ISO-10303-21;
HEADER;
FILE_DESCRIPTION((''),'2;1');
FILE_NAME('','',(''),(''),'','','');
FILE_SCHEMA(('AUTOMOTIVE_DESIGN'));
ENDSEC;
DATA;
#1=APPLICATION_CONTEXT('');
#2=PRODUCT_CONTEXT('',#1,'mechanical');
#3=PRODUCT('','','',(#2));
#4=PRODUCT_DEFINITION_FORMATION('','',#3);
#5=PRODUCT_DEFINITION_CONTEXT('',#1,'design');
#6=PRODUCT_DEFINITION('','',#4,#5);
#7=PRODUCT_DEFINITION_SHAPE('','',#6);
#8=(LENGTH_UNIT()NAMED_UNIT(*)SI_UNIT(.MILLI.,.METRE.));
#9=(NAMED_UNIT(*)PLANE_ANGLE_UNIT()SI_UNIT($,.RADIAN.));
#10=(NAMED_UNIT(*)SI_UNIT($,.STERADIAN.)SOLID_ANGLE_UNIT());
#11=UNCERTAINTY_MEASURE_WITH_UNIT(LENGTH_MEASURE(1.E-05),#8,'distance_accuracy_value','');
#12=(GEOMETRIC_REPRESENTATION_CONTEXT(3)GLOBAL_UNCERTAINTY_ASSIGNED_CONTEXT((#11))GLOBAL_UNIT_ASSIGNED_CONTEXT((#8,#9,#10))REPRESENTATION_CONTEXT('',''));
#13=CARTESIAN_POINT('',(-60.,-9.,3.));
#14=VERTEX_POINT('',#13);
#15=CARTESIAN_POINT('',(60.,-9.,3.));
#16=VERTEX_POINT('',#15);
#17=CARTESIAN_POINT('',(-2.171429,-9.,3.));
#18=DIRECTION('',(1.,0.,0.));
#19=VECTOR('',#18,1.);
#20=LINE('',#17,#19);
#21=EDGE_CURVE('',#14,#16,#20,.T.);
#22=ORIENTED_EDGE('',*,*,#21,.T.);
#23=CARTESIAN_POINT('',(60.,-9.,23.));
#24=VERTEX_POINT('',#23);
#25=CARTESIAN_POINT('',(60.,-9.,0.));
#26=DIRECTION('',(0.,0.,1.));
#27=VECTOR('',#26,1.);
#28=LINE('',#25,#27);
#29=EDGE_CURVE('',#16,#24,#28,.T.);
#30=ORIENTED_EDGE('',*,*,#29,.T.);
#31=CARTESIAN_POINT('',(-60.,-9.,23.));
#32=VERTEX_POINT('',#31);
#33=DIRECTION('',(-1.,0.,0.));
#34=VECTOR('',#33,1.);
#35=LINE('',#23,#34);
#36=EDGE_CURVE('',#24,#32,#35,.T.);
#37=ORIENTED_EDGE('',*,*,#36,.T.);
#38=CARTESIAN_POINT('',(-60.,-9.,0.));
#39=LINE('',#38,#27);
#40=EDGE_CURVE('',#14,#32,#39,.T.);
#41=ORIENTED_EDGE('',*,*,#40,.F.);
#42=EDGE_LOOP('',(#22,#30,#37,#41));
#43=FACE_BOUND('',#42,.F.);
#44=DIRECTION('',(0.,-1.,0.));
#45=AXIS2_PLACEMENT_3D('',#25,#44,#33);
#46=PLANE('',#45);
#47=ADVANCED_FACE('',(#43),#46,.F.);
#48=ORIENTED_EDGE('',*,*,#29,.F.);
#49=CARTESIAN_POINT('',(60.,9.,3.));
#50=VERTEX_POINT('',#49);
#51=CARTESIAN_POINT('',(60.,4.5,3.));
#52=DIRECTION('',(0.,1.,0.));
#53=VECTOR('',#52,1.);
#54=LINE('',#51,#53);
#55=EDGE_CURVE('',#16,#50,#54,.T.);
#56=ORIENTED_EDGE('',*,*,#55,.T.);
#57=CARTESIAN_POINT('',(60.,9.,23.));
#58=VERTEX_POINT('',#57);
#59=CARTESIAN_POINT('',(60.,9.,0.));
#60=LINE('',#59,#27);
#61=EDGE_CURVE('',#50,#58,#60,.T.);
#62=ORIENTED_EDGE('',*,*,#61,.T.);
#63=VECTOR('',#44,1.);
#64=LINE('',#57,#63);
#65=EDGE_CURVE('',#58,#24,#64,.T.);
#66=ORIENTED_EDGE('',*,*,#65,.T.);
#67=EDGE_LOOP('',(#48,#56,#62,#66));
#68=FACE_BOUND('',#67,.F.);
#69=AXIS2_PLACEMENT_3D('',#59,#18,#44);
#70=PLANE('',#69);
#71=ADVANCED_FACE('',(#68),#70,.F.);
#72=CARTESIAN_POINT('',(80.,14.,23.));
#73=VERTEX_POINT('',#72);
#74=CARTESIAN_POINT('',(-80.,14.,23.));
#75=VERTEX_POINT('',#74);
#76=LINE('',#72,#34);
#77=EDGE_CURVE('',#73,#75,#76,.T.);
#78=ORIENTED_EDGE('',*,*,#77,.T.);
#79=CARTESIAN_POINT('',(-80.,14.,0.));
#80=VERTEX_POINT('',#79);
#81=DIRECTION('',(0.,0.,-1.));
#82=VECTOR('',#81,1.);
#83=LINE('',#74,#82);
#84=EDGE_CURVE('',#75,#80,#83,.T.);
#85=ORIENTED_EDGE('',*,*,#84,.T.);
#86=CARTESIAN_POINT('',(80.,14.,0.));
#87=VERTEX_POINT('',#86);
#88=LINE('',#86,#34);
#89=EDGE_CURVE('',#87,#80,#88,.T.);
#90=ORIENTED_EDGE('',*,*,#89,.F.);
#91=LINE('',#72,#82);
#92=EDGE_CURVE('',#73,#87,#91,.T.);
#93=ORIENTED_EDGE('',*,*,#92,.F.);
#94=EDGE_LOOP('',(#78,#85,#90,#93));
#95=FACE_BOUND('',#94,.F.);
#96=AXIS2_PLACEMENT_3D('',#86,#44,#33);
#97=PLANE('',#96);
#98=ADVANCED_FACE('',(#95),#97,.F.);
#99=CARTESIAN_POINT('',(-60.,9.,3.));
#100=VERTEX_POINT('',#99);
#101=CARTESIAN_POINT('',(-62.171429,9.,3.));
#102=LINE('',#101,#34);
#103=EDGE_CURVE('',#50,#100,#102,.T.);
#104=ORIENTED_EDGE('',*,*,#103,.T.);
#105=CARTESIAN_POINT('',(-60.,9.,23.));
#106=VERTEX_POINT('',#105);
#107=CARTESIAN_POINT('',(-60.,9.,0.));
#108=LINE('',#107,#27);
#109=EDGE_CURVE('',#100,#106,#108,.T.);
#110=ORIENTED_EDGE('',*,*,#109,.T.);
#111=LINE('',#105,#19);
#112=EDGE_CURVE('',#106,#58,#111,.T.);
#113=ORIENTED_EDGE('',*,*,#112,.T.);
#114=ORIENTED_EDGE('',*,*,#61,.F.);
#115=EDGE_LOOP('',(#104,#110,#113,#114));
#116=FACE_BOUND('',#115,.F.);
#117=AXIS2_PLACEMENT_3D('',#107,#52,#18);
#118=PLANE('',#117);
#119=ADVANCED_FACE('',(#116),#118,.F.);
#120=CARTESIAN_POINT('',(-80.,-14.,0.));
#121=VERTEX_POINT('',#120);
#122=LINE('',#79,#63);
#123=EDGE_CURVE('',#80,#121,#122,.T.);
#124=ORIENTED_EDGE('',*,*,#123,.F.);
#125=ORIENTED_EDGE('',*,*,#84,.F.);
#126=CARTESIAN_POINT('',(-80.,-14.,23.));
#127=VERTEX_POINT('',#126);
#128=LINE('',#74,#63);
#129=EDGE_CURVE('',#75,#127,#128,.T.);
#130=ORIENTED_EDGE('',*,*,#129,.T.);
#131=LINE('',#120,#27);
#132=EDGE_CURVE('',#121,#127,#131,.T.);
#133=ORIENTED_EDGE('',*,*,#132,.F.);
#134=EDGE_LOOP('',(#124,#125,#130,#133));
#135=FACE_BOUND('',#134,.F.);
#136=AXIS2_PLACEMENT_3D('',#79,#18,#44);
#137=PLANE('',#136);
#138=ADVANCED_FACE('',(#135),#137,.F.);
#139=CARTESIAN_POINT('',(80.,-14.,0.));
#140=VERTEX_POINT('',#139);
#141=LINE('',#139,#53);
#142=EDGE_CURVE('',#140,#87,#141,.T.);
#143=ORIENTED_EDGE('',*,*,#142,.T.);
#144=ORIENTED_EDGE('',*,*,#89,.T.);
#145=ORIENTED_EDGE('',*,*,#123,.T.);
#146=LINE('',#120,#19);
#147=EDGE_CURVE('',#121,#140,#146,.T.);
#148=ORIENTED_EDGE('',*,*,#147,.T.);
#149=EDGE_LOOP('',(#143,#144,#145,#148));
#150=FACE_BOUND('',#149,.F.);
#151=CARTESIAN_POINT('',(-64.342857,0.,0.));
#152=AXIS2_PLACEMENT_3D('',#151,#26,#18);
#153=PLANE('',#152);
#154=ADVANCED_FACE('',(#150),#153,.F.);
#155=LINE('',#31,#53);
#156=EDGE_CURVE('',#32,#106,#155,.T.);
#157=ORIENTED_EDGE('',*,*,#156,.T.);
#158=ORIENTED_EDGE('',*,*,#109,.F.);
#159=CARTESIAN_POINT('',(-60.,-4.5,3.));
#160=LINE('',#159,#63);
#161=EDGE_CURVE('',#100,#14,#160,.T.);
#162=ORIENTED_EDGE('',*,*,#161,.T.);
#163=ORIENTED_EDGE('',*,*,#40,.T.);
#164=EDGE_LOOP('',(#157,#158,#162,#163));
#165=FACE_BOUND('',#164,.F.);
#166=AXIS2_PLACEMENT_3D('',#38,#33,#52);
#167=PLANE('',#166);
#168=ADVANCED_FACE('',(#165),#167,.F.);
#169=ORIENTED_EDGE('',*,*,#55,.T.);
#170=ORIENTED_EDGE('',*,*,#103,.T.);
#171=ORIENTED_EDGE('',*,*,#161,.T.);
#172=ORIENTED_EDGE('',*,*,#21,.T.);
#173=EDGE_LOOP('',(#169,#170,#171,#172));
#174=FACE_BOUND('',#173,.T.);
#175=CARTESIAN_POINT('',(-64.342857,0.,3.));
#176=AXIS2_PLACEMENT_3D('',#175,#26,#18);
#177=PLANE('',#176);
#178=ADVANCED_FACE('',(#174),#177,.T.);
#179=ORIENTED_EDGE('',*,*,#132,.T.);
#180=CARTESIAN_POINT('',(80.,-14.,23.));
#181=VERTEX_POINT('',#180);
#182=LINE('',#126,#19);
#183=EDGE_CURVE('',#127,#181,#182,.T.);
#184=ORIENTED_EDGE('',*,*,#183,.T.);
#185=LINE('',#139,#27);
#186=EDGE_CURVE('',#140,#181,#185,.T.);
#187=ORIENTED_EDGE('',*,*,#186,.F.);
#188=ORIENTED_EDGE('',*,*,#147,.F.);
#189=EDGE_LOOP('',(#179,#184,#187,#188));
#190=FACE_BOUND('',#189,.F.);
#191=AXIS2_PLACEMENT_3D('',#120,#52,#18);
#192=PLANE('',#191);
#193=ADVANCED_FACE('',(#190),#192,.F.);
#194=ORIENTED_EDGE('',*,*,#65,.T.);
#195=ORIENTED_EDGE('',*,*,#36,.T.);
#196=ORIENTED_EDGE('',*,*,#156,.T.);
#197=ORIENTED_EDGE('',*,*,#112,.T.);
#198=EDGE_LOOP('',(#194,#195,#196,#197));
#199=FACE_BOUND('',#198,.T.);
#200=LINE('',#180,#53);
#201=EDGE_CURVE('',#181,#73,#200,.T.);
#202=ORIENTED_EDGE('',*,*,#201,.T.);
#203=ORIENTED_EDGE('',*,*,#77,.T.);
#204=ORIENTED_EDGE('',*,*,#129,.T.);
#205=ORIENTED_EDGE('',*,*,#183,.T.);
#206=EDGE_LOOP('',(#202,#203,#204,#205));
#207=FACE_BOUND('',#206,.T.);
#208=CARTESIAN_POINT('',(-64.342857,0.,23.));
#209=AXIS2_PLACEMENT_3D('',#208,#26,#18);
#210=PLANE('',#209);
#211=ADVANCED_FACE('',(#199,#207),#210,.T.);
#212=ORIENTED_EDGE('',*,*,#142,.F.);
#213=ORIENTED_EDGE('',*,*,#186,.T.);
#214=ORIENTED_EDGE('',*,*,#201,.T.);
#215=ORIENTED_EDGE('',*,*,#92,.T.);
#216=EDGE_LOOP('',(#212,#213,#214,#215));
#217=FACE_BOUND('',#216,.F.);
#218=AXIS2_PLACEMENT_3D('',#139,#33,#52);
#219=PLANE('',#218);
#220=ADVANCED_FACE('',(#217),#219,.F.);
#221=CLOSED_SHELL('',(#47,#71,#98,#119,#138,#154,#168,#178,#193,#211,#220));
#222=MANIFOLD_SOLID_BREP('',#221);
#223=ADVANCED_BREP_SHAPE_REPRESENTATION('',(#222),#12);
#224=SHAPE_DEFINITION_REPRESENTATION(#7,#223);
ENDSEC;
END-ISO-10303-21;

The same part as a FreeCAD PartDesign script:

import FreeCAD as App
import Part
import Sketcher

doc = App.newDocument("Part")
body = doc.addObject("PartDesign::Body", "Body")

sketch1 = body.newObject("Sketcher::SketchObject", "Sketch")
sketch1.AttachmentSupport = (doc.getObject("XY_Plane"), [""])
sketch1.MapMode = "FlatFace"
sketch1.addGeometry(Part.LineSegment(App.Vector(-80, 14, 0), App.Vector(-80, -14, 0)), False)
sketch1.addGeometry(Part.LineSegment(App.Vector(-80, -14, 0), App.Vector(80, -14, 0)), False)
sketch1.addGeometry(Part.LineSegment(App.Vector(80, -14, 0), App.Vector(80, 14, 0)), False)
sketch1.addGeometry(Part.LineSegment(App.Vector(80, 14, 0), App.Vector(-80, 14, 0)), False)
sketch1.addConstraint(Sketcher.Constraint("Coincident", 0, 2, 1, 1))
sketch1.addConstraint(Sketcher.Constraint("Coincident", 1, 2, 2, 1))
sketch1.addConstraint(Sketcher.Constraint("Coincident", 2, 2, 3, 1))
sketch1.addConstraint(Sketcher.Constraint("Coincident", 3, 2, 0, 1))
sketch1.addConstraint(Sketcher.Constraint("Vertical", 0))
sketch1.addConstraint(Sketcher.Constraint("Horizontal", 1))
sketch1.addConstraint(Sketcher.Constraint("Vertical", 2))
sketch1.addConstraint(Sketcher.Constraint("Horizontal", 3))
sketch1.addConstraint(Sketcher.Constraint("Symmetric", 0, 2, 2, 2, -1, 1))
sketch1.addConstraint(Sketcher.Constraint("DistanceX", 1, 1, 1, 2, 160.0))
sketch1.addConstraint(Sketcher.Constraint("DistanceY", 0, 2, 0, 1, 28.0))
pad1 = body.newObject("PartDesign::Pad", "Pad")
pad1.Profile = sketch1
pad1.Length = 3

sketch2 = body.newObject("Sketcher::SketchObject", "Sketch001")
sketch2.AttachmentSupport = (doc.getObject("XY_Plane"), [""])
sketch2.MapMode = "FlatFace"
sketch2.addGeometry(Part.LineSegment(App.Vector(-80, -14, 0), App.Vector(80, -14, 0)), False)
sketch2.addGeometry(Part.LineSegment(App.Vector(80, -14, 0), App.Vector(80, 14, 0)), False)
sketch2.addGeometry(Part.LineSegment(App.Vector(80, 14, 0), App.Vector(-80, 14, 0)), False)
sketch2.addGeometry(Part.LineSegment(App.Vector(-80, 14, 0), App.Vector(-80, -14, 0)), False)
sketch2.addGeometry(Part.LineSegment(App.Vector(-60, -9, 0), App.Vector(-60, 9, 0)), False)
sketch2.addGeometry(Part.LineSegment(App.Vector(-60, 9, 0), App.Vector(60, 9, 0)), False)
sketch2.addGeometry(Part.LineSegment(App.Vector(60, 9, 0), App.Vector(60, -9, 0)), False)
sketch2.addGeometry(Part.LineSegment(App.Vector(60, -9, 0), App.Vector(-60, -9, 0)), False)
sketch2.addConstraint(Sketcher.Constraint("Coincident", 0, 2, 1, 1))
sketch2.addConstraint(Sketcher.Constraint("Coincident", 1, 2, 2, 1))
sketch2.addConstraint(Sketcher.Constraint("Coincident", 2, 2, 3, 1))
sketch2.addConstraint(Sketcher.Constraint("Coincident", 3, 2, 0, 1))
sketch2.addConstraint(Sketcher.Constraint("Coincident", 4, 2, 5, 1))
sketch2.addConstraint(Sketcher.Constraint("Coincident", 5, 2, 6, 1))
sketch2.addConstraint(Sketcher.Constraint("Coincident", 6, 2, 7, 1))
sketch2.addConstraint(Sketcher.Constraint("Coincident", 7, 2, 4, 1))
sketch2.addConstraint(Sketcher.Constraint("Horizontal", 0))
sketch2.addConstraint(Sketcher.Constraint("Vertical", 1))
sketch2.addConstraint(Sketcher.Constraint("Horizontal", 2))
sketch2.addConstraint(Sketcher.Constraint("Vertical", 3))
sketch2.addConstraint(Sketcher.Constraint("Vertical", 4))
sketch2.addConstraint(Sketcher.Constraint("Horizontal", 5))
sketch2.addConstraint(Sketcher.Constraint("Vertical", 6))
sketch2.addConstraint(Sketcher.Constraint("Horizontal", 7))
sketch2.addConstraint(Sketcher.Constraint("Symmetric", 0, 2, 2, 2, -1, 1))
sketch2.addConstraint(Sketcher.Constraint("Symmetric", 4, 2, 6, 2, -1, 1))
sketch2.addConstraint(Sketcher.Constraint("DistanceX", 0, 1, 0, 2, 160.0))
sketch2.addConstraint(Sketcher.Constraint("DistanceX", 5, 1, 5, 2, 120.0))
sketch2.addConstraint(Sketcher.Constraint("DistanceY", 1, 1, 1, 2, 28.0))
sketch2.addConstraint(Sketcher.Constraint("DistanceY", 4, 1, 4, 2, 18.0))
pad2 = body.newObject("PartDesign::Pad", "Pad001")
pad2.Profile = sketch2
pad2.Length = 23

doc.recompute()
